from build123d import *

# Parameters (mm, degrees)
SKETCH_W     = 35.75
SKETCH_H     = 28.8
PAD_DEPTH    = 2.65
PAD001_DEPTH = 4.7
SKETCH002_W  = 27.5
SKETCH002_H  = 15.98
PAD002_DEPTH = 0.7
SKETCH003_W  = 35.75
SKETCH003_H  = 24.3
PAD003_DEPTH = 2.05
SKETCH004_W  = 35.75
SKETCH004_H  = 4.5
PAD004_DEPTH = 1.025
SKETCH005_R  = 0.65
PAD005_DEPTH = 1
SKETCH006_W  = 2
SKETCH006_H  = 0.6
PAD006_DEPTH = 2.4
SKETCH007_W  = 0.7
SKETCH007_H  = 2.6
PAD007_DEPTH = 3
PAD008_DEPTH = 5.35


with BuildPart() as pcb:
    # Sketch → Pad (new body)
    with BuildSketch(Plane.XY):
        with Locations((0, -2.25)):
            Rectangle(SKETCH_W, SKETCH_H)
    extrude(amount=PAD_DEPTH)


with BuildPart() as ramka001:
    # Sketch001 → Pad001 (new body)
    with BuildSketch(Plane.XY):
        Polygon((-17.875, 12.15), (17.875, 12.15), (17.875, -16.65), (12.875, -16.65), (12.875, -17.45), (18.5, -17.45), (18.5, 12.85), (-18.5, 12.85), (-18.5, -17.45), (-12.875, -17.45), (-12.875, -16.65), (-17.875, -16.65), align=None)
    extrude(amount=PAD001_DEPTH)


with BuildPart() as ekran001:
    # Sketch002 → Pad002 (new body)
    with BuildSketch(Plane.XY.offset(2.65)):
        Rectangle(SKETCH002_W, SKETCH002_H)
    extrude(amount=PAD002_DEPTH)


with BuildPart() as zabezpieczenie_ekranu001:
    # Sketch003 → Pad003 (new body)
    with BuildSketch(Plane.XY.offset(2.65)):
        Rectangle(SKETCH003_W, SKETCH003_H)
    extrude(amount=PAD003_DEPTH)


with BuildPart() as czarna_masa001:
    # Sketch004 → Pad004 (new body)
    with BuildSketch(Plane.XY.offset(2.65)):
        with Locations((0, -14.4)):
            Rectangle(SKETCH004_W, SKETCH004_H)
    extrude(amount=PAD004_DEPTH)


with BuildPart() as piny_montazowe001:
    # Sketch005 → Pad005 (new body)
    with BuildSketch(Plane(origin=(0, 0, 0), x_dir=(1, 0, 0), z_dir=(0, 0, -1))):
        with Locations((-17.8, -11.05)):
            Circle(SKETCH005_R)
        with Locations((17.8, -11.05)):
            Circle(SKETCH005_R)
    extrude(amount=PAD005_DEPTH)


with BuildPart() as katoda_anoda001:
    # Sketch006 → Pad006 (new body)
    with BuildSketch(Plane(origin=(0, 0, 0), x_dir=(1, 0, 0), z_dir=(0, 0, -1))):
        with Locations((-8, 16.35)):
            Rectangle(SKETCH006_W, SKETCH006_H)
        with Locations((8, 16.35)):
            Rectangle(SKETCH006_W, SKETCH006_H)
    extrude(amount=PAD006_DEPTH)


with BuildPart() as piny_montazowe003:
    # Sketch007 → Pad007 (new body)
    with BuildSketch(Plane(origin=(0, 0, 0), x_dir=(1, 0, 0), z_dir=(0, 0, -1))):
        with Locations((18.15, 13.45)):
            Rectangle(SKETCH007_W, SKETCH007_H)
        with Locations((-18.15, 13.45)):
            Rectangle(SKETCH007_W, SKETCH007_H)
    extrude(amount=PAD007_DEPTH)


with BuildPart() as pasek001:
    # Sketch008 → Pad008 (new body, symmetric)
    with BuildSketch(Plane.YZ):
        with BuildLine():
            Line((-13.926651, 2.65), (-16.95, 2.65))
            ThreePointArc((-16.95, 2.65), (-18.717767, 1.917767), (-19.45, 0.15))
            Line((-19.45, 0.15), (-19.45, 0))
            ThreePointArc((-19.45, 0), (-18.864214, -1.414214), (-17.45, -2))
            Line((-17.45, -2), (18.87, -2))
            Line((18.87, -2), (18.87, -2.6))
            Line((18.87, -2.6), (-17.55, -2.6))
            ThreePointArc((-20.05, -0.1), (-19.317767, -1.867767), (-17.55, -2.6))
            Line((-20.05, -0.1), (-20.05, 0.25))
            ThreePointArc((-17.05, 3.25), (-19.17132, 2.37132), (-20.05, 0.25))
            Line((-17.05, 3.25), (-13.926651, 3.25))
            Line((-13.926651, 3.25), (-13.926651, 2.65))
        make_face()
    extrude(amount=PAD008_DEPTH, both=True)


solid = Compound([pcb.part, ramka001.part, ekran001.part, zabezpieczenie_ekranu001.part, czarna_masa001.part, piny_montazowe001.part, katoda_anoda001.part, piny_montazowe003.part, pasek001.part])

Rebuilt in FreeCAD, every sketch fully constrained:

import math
import FreeCAD as App
import Part
import Sketcher

V = App.Vector
Q = App.Units.Quantity


def add_polygon(sketch, points):
    """Adds a closed chain of lines whose ends are joined by coincident constraints."""
    first, n = sketch.GeometryCount, len(points)
    for a, b in zip(points, points[1:] + points[:1]):
        sketch.addGeometry(Part.LineSegment(App.Vector(*a, 0), App.Vector(*b, 0)), False)
    for i in range(n):
        sketch.addConstraint(Sketcher.Constraint("Coincident", first + i, 2, first + (i + 1) % n, 1))

doc = App.newDocument("Part")
body = doc.addObject("PartDesign::Body", "Body")

# Sketch on XY plane
sketch1 = body.newObject("Sketcher::SketchObject", "Sketch")
sketch1.AttachmentSupport = (doc.getObject("XY_Plane"), [""])
sketch1.MapMode = "FlatFace"
add_polygon(sketch1, [(-18, 12), (-18, -17), (18, -17), (18, 12)])  # lines 0-3
sketch1.addConstraint([
    Sketcher.Constraint("Vertical", 0),
    Sketcher.Constraint("Horizontal", 1),
    Sketcher.Constraint("Vertical", 2),
    Sketcher.Constraint("Horizontal", 3),
    Sketcher.Constraint("DistanceY", 0, 2, 0, 1, Q("28.8 mm")),
    Sketcher.Constraint("DistanceX", 1, 1, 1, 2, Q("35.75 mm")),
    Sketcher.Constraint("DistanceY", 0, 2, -1, 1, Q("16.65 mm")),
    Sketcher.Constraint("DistanceX", 0, 2, -1, 1, Q("17.875 mm")),
])
pad1 = body.newObject("PartDesign::Pad", "Pad")
pad1.Profile = sketch1
pad1.Length = 2.65
body2 = doc.addObject("PartDesign::Body", "Body001")

# Sketch on XY plane
sketch2 = body2.newObject("Sketcher::SketchObject", "Sketch001")
sketch2.AttachmentSupport = (doc.getObject("XY_Plane001"), [""])
sketch2.MapMode = "FlatFace"
add_polygon(sketch2, [(-17.9, 12.2), (17.9, 12.2), (17.9, -16.6), (12.9, -16.6), (12.9, -17.4), (18.5, -17.4), (18.5, 12.8), (-18.5, 12.8), (-18.5, -17.4), (-12.9, -17.4), (-12.9, -16.6), (-17.9, -16.6)])  # lines 0-11
sketch2.addConstraint([
    Sketcher.Constraint("Horizontal", 0),
    Sketcher.Constraint("Vertical", 1),
    Sketcher.Constraint("Horizontal", 2),
    Sketcher.Constraint("Vertical", 3),
    Sketcher.Constraint("Horizontal", 4),
    Sketcher.Constraint("Vertical", 5),
    Sketcher.Constraint("Horizontal", 6),
    Sketcher.Constraint("Vertical", 7),
    Sketcher.Constraint("Horizontal", 8),
    Sketcher.Constraint("Vertical", 9),
    Sketcher.Constraint("Horizontal", 10),
    Sketcher.Constraint("Vertical", 11),
    Sketcher.Constraint("Symmetric", 4, 2, 7, 2, -2),
    Sketcher.Constraint("Symmetric", 2, 2, 9, 2, -2),
    Sketcher.Constraint("Equal", 2, 10),
    Sketcher.Constraint("DistanceX", 2, 2, 2, 1, Q("5 mm")),
    Sketcher.Constraint("DistanceX", 6, 2, 6, 1, Q("37 mm")),
    Sketcher.Constraint("DistanceY", 1, 2, 1, 1, Q("28.8 mm")),
    Sketcher.Constraint("DistanceY", 3, 2, 3, 1, Q("0.8 mm")),
    Sketcher.Constraint("DistanceY", 5, 1, 5, 2, Q("30.3 mm")),
    Sketcher.Constraint("DistanceX", 0, 1, 0, 2, Q("35.75 mm")),
    Sketcher.Constraint("DistanceY", -1, 1, 0, 2, Q("12.15 mm")),
])
pad2 = body2.newObject("PartDesign::Pad", "Pad001")
pad2.Profile = sketch2
pad2.Length = 4.7
body3 = doc.addObject("PartDesign::Body", "Body002")

# Sketch on XY plane
sketch3 = body3.newObject("Sketcher::SketchObject", "Sketch002")
sketch3.AttachmentSupport = (doc.getObject("XY_Plane002"), [""])
sketch3.MapMode = "FlatFace"
sketch3.AttachmentOffset = App.Placement(V(0, 0, 2.65), App.Rotation())
add_polygon(sketch3, [(-14, 8), (-14, -8), (14, -8), (14, 8)])  # lines 0-3
sketch3.addConstraint([
    Sketcher.Constraint("Vertical", 0),
    Sketcher.Constraint("Horizontal", 1),
    Sketcher.Constraint("Vertical", 2),
    Sketcher.Constraint("Horizontal", 3),
    Sketcher.Constraint("Symmetric", 0, 2, 2, 2, -1, 1),
    Sketcher.Constraint("DistanceX", 1, 1, 1, 2, Q("27.5 mm")),
    Sketcher.Constraint("DistanceY", 0, 2, 0, 1, Q("15.98 mm")),
])
pad3 = body3.newObject("PartDesign::Pad", "Pad002")
pad3.Profile = sketch3
pad3.Length = 0.7
body4 = doc.addObject("PartDesign::Body", "Body003")

# Sketch on XY plane
sketch4 = body4.newObject("Sketcher::SketchObject", "Sketch003")
sketch4.AttachmentSupport = (doc.getObject("XY_Plane003"), [""])
sketch4.MapMode = "FlatFace"
sketch4.AttachmentOffset = App.Placement(V(0, 0, 2.65), App.Rotation())
add_polygon(sketch4, [(-18, 12), (-18, -12), (18, -12), (18, 12)])  # lines 0-3
sketch4.addConstraint([
    Sketcher.Constraint("Vertical", 0),
    Sketcher.Constraint("Horizontal", 1),
    Sketcher.Constraint("Vertical", 2),
    Sketcher.Constraint("Horizontal", 3),
    Sketcher.Constraint("Symmetric", 0, 2, 2, 2, -1, 1),
    Sketcher.Constraint("DistanceY", 0, 2, 0, 1, Q("24.3 mm")),
    Sketcher.Constraint("DistanceX", 1, 1, 1, 2, Q("35.75 mm")),
])
pad4 = body4.newObject("PartDesign::Pad", "Pad003")
pad4.Profile = sketch4
pad4.Length = 2.05
body5 = doc.addObject("PartDesign::Body", "Body004")

# Sketch on XY plane
sketch5 = body5.newObject("Sketcher::SketchObject", "Sketch004")
sketch5.AttachmentSupport = (doc.getObject("XY_Plane004"), [""])
sketch5.MapMode = "FlatFace"
sketch5.AttachmentOffset = App.Placement(V(0, 0, 2.65), App.Rotation())
add_polygon(sketch5, [(-17.9, -12.2), (-17.9, -16.6), (17.9, -16.6), (17.9, -12.2)])  # lines 0-3
sketch5.addConstraint([
    Sketcher.Constraint("Vertical", 0),
    Sketcher.Constraint("Horizontal", 1),
    Sketcher.Constraint("Vertical", 2),
    Sketcher.Constraint("Horizontal", 3),
    Sketcher.Constraint("DistanceY", 0, 2, 0, 1, Q("4.5 mm")),
    Sketcher.Constraint("DistanceX", 1, 1, 1, 2, Q("35.75 mm")),
    Sketcher.Constraint("DistanceY", 0, 2, -1, 1, Q("16.65 mm")),
    Sketcher.Constraint("DistanceX", 0, 2, -1, 1, Q("17.875 mm")),
])
pad5 = body5.newObject("PartDesign::Pad", "Pad004")
pad5.Profile = sketch5
pad5.Length = 1.025
body6 = doc.addObject("PartDesign::Body", "Body005")
body6.AllowCompound = True

# Sketch on XY plane
sketch6 = body6.newObject("Sketcher::SketchObject", "Sketch005")
sketch6.AttachmentSupport = (doc.getObject("XY_Plane005"), [""])
sketch6.MapMode = "FlatFace"
sketch6.addGeometry([
    Part.Circle(V(-17.8, 11.1, 0), V(0, 0, 1), 0.7),
    Part.Circle(V(17.8, 11.1, 0), V(0, 0, 1), 0.7),
], False)
sketch6.addConstraint([
    Sketcher.Constraint("Equal", 0, 1),
    Sketcher.Constraint("Symmetric", 0, 3, 1, 3, -2),
    Sketcher.Constraint("Diameter", 0, Q("1.3 mm")),
    Sketcher.Constraint("DistanceX", 0, 3, -1, 1, Q("17.8 mm")),
    Sketcher.Constraint("DistanceY", -1, 1, 0, 3, Q("11.05 mm")),
])
pad6 = body6.newObject("PartDesign::Pad", "Pad005")
pad6.Profile = sketch6
pad6.Length = 1
pad6.Reversed = True
body7 = doc.addObject("PartDesign::Body", "Body006")
body7.AllowCompound = True

# Sketch on XY plane
sketch7 = body7.newObject("Sketcher::SketchObject", "Sketch006")
sketch7.AttachmentSupport = (doc.getObject("XY_Plane006"), [""])
sketch7.MapMode = "FlatFace"
add_polygon(sketch7, [(-9, -16.6), (-9, -16.1), (-7, -16.1), (-7, -16.6)])  # lines 0-3
add_polygon(sketch7, [(7, -16.6), (7, -16.1), (9, -16.1), (9, -16.6)])  # lines 4-7
sketch7.addConstraint([
    Sketcher.Constraint("Vertical", 0),
    Sketcher.Constraint("Horizontal", 1),
    Sketcher.Constraint("Vertical", 2),
    Sketcher.Constraint("Horizontal", 3),
    Sketcher.Constraint("Vertical", 4),
    Sketcher.Constraint("Horizontal", 5),
    Sketcher.Constraint("Vertical", 6),
    Sketcher.Constraint("Horizontal", 7),
    Sketcher.Constraint("Symmetric", 1, 2, 4, 2, -2),
    Sketcher.Constraint("Symmetric", 3, 2, 6, 2, -2),
    Sketcher.Constraint("DistanceX", 1, 1, 1, 2, Q("2 mm")),
    Sketcher.Constraint("DistanceY", 0, 1, 0, 2, Q("0.6 mm")),
    Sketcher.Constraint("DistanceX", 0, 2, -1, 1, Q("9 mm")),
    Sketcher.Constraint("DistanceY", 0, 2, -1, 1, Q("16.05 mm")),
])
pad7 = body7.newObject("PartDesign::Pad", "Pad006")
pad7.Profile = sketch7
pad7.Length = 2.4
pad7.Reversed = True
body8 = doc.addObject("PartDesign::Body", "Body007")
body8.AllowCompound = True

# Sketch on XY plane
sketch8 = body8.newObject("Sketcher::SketchObject", "Sketch007")
sketch8.AttachmentSupport = (doc.getObject("XY_Plane007"), [""])
sketch8.MapMode = "FlatFace"
add_polygon(sketch8, [(17.8, -14.8), (17.8, -12.2), (18.5, -12.2), (18.5, -14.8)])  # lines 0-3
add_polygon(sketch8, [(-18.5, -14.8), (-18.5, -12.2), (-17.8, -12.2), (-17.8, -14.8)])  # lines 4-7
sketch8.addConstraint([
    Sketcher.Constraint("Vertical", 0),
    Sketcher.Constraint("Horizontal", 1),
    Sketcher.Constraint("Vertical", 2),
    Sketcher.Constraint("Horizontal", 3),
    Sketcher.Constraint("Vertical", 4),
    Sketcher.Constraint("Horizontal", 5),
    Sketcher.Constraint("Vertical", 6),
    Sketcher.Constraint("Horizontal", 7),
    Sketcher.Constraint("Symmetric", 1, 2, 4, 2, -2),
    Sketcher.Constraint("Symmetric", 3, 2, 6, 2, -2),
    Sketcher.Constraint("DistanceX", 1, 1, 1, 2, Q("0.7 mm")),
    Sketcher.Constraint("DistanceY", 0, 1, 0, 2, Q("2.6 mm")),
    Sketcher.Constraint("DistanceX", 4, 2, 1, 2, Q("37 mm")),
    Sketcher.Constraint("DistanceY", 0, 2, -1, 1, Q("12.15 mm")),
])
pad8 = body8.newObject("PartDesign::Pad", "Pad007")
pad8.Profile = sketch8
pad8.Length = 3
pad8.Reversed = True
body9 = doc.addObject("PartDesign::Body", "Body008")

# Sketch on YZ plane
sketch9 = body9.newObject("Sketcher::SketchObject", "Sketch008")
sketch9.AttachmentSupport = (doc.getObject("YZ_Plane008"), [""])
sketch9.MapMode = "FlatFace"
sketch9.addGeometry([
    Part.LineSegment(V(-16.95, 2.65, 0), V(-13.93, 2.65, 0)),  # 0
    Part.LineSegment(V(-13.93, 2.65, 0), V(-13.93, 3.25, 0)),  # 1
    Part.LineSegment(V(-13.93, 3.25, 0), V(-17.05, 3.25, 0)),  # 2
    Part.ArcOfCircle(Part.Circle(V(-17.05, 0.25, 0), V(0, 0, 1), 3), math.radians(90), math.radians(180)),  # 3
    Part.LineSegment(V(-20.05, 0.25, 0), V(-20.05, -0.1, 0)),  # 4
    Part.ArcOfCircle(Part.Circle(V(-17.55, -0.1, 0), V(0, 0, 1), 2.5), math.radians(180), math.radians(270)),  # 5
    Part.LineSegment(V(-17.55, -2.6, 0), V(18.87, -2.6, 0)),  # 6
    Part.LineSegment(V(18.87, -2.6, 0), V(18.87, -2, 0)),  # 7
    Part.LineSegment(V(18.87, -2, 0), V(-17.45, -2, 0)),  # 8
    Part.ArcOfCircle(Part.Circle(V(-17.45, 0, 0), V(0, 0, 1), 2), math.radians(180), math.radians(270)),  # 9
    Part.LineSegment(V(-19.45, 0, 0), V(-19.45, 0.15, 0)),  # 10
    Part.ArcOfCircle(Part.Circle(V(-16.95, 0.15, 0), V(0, 0, 1), 2.5), math.radians(90), math.radians(180)),  # 11
], False)
sketch9.addConstraint([
    Sketcher.Constraint("Coincident", 0, 2, 1, 1),
    Sketcher.Constraint("Coincident", 1, 2, 2, 1),
    Sketcher.Constraint("Tangent", 2, 2, 3, 1),
    Sketcher.Constraint("Tangent", 3, 2, 4, 1),
    Sketcher.Constraint("Tangent", 4, 2, 5, 1),
    Sketcher.Constraint("Tangent", 5, 2, 6, 1),
    Sketcher.Constraint("Coincident", 6, 2, 7, 1),
    Sketcher.Constraint("Coincident", 7, 2, 8, 1),
    Sketcher.Constraint("Tangent", 8, 2, 9, 2),
    Sketcher.Constraint("Tangent", 9, 1, 10, 1),
    Sketcher.Constraint("Tangent", 10, 2, 11, 2),
    Sketcher.Constraint("Tangent", 11, 1, 0, 1),
    Sketcher.Constraint("Horizontal", 0),
    Sketcher.Constraint("Vertical", 1),
    Sketcher.Constraint("Horizontal", 2),
    Sketcher.Constraint("Vertical", 4),
    Sketcher.Constraint("Horizontal", 6),
    Sketcher.Constraint("Vertical", 7),
    Sketcher.Constraint("Horizontal", 8),
    Sketcher.Constraint("Vertical", 10),
    Sketcher.Constraint("Equal", 5, 11),
    Sketcher.Constraint("PointOnObject", 9, 3, -1),
    Sketcher.Constraint("Equal", 1, 7),
    Sketcher.Constraint("Radius", 3, Q("3.000001 mm")),
    Sketcher.Constraint("Radius", 9, Q("1.999999 mm")),
    Sketcher.Constraint("Radius", 5, Q("2.5 mm")),
    Sketcher.Constraint("DistanceY", 1, 1, 1, 2, Q("0.6 mm")),
    Sketcher.Constraint("DistanceX", 6, 1, 6, 2, Q("36.42 mm")),
    Sketcher.Constraint("DistanceX", 8, 2, 8, 1, Q("36.32 mm")),
    Sketcher.Constraint("DistanceY", 4, 2, 4, 1, Q("0.35 mm")),
    Sketcher.Constraint("DistanceX", 3, 3, -1, 1, Q("17.049999 mm")),
    Sketcher.Constraint("DistanceX", 0, 1, 0, 2, Q("3.023349 mm")),
])
pad9 = body9.newObject("PartDesign::Pad", "Pad008")
pad9.Profile = sketch9
pad9.Length = 10.7
pad9.Midplane = True

doc.recompute()
